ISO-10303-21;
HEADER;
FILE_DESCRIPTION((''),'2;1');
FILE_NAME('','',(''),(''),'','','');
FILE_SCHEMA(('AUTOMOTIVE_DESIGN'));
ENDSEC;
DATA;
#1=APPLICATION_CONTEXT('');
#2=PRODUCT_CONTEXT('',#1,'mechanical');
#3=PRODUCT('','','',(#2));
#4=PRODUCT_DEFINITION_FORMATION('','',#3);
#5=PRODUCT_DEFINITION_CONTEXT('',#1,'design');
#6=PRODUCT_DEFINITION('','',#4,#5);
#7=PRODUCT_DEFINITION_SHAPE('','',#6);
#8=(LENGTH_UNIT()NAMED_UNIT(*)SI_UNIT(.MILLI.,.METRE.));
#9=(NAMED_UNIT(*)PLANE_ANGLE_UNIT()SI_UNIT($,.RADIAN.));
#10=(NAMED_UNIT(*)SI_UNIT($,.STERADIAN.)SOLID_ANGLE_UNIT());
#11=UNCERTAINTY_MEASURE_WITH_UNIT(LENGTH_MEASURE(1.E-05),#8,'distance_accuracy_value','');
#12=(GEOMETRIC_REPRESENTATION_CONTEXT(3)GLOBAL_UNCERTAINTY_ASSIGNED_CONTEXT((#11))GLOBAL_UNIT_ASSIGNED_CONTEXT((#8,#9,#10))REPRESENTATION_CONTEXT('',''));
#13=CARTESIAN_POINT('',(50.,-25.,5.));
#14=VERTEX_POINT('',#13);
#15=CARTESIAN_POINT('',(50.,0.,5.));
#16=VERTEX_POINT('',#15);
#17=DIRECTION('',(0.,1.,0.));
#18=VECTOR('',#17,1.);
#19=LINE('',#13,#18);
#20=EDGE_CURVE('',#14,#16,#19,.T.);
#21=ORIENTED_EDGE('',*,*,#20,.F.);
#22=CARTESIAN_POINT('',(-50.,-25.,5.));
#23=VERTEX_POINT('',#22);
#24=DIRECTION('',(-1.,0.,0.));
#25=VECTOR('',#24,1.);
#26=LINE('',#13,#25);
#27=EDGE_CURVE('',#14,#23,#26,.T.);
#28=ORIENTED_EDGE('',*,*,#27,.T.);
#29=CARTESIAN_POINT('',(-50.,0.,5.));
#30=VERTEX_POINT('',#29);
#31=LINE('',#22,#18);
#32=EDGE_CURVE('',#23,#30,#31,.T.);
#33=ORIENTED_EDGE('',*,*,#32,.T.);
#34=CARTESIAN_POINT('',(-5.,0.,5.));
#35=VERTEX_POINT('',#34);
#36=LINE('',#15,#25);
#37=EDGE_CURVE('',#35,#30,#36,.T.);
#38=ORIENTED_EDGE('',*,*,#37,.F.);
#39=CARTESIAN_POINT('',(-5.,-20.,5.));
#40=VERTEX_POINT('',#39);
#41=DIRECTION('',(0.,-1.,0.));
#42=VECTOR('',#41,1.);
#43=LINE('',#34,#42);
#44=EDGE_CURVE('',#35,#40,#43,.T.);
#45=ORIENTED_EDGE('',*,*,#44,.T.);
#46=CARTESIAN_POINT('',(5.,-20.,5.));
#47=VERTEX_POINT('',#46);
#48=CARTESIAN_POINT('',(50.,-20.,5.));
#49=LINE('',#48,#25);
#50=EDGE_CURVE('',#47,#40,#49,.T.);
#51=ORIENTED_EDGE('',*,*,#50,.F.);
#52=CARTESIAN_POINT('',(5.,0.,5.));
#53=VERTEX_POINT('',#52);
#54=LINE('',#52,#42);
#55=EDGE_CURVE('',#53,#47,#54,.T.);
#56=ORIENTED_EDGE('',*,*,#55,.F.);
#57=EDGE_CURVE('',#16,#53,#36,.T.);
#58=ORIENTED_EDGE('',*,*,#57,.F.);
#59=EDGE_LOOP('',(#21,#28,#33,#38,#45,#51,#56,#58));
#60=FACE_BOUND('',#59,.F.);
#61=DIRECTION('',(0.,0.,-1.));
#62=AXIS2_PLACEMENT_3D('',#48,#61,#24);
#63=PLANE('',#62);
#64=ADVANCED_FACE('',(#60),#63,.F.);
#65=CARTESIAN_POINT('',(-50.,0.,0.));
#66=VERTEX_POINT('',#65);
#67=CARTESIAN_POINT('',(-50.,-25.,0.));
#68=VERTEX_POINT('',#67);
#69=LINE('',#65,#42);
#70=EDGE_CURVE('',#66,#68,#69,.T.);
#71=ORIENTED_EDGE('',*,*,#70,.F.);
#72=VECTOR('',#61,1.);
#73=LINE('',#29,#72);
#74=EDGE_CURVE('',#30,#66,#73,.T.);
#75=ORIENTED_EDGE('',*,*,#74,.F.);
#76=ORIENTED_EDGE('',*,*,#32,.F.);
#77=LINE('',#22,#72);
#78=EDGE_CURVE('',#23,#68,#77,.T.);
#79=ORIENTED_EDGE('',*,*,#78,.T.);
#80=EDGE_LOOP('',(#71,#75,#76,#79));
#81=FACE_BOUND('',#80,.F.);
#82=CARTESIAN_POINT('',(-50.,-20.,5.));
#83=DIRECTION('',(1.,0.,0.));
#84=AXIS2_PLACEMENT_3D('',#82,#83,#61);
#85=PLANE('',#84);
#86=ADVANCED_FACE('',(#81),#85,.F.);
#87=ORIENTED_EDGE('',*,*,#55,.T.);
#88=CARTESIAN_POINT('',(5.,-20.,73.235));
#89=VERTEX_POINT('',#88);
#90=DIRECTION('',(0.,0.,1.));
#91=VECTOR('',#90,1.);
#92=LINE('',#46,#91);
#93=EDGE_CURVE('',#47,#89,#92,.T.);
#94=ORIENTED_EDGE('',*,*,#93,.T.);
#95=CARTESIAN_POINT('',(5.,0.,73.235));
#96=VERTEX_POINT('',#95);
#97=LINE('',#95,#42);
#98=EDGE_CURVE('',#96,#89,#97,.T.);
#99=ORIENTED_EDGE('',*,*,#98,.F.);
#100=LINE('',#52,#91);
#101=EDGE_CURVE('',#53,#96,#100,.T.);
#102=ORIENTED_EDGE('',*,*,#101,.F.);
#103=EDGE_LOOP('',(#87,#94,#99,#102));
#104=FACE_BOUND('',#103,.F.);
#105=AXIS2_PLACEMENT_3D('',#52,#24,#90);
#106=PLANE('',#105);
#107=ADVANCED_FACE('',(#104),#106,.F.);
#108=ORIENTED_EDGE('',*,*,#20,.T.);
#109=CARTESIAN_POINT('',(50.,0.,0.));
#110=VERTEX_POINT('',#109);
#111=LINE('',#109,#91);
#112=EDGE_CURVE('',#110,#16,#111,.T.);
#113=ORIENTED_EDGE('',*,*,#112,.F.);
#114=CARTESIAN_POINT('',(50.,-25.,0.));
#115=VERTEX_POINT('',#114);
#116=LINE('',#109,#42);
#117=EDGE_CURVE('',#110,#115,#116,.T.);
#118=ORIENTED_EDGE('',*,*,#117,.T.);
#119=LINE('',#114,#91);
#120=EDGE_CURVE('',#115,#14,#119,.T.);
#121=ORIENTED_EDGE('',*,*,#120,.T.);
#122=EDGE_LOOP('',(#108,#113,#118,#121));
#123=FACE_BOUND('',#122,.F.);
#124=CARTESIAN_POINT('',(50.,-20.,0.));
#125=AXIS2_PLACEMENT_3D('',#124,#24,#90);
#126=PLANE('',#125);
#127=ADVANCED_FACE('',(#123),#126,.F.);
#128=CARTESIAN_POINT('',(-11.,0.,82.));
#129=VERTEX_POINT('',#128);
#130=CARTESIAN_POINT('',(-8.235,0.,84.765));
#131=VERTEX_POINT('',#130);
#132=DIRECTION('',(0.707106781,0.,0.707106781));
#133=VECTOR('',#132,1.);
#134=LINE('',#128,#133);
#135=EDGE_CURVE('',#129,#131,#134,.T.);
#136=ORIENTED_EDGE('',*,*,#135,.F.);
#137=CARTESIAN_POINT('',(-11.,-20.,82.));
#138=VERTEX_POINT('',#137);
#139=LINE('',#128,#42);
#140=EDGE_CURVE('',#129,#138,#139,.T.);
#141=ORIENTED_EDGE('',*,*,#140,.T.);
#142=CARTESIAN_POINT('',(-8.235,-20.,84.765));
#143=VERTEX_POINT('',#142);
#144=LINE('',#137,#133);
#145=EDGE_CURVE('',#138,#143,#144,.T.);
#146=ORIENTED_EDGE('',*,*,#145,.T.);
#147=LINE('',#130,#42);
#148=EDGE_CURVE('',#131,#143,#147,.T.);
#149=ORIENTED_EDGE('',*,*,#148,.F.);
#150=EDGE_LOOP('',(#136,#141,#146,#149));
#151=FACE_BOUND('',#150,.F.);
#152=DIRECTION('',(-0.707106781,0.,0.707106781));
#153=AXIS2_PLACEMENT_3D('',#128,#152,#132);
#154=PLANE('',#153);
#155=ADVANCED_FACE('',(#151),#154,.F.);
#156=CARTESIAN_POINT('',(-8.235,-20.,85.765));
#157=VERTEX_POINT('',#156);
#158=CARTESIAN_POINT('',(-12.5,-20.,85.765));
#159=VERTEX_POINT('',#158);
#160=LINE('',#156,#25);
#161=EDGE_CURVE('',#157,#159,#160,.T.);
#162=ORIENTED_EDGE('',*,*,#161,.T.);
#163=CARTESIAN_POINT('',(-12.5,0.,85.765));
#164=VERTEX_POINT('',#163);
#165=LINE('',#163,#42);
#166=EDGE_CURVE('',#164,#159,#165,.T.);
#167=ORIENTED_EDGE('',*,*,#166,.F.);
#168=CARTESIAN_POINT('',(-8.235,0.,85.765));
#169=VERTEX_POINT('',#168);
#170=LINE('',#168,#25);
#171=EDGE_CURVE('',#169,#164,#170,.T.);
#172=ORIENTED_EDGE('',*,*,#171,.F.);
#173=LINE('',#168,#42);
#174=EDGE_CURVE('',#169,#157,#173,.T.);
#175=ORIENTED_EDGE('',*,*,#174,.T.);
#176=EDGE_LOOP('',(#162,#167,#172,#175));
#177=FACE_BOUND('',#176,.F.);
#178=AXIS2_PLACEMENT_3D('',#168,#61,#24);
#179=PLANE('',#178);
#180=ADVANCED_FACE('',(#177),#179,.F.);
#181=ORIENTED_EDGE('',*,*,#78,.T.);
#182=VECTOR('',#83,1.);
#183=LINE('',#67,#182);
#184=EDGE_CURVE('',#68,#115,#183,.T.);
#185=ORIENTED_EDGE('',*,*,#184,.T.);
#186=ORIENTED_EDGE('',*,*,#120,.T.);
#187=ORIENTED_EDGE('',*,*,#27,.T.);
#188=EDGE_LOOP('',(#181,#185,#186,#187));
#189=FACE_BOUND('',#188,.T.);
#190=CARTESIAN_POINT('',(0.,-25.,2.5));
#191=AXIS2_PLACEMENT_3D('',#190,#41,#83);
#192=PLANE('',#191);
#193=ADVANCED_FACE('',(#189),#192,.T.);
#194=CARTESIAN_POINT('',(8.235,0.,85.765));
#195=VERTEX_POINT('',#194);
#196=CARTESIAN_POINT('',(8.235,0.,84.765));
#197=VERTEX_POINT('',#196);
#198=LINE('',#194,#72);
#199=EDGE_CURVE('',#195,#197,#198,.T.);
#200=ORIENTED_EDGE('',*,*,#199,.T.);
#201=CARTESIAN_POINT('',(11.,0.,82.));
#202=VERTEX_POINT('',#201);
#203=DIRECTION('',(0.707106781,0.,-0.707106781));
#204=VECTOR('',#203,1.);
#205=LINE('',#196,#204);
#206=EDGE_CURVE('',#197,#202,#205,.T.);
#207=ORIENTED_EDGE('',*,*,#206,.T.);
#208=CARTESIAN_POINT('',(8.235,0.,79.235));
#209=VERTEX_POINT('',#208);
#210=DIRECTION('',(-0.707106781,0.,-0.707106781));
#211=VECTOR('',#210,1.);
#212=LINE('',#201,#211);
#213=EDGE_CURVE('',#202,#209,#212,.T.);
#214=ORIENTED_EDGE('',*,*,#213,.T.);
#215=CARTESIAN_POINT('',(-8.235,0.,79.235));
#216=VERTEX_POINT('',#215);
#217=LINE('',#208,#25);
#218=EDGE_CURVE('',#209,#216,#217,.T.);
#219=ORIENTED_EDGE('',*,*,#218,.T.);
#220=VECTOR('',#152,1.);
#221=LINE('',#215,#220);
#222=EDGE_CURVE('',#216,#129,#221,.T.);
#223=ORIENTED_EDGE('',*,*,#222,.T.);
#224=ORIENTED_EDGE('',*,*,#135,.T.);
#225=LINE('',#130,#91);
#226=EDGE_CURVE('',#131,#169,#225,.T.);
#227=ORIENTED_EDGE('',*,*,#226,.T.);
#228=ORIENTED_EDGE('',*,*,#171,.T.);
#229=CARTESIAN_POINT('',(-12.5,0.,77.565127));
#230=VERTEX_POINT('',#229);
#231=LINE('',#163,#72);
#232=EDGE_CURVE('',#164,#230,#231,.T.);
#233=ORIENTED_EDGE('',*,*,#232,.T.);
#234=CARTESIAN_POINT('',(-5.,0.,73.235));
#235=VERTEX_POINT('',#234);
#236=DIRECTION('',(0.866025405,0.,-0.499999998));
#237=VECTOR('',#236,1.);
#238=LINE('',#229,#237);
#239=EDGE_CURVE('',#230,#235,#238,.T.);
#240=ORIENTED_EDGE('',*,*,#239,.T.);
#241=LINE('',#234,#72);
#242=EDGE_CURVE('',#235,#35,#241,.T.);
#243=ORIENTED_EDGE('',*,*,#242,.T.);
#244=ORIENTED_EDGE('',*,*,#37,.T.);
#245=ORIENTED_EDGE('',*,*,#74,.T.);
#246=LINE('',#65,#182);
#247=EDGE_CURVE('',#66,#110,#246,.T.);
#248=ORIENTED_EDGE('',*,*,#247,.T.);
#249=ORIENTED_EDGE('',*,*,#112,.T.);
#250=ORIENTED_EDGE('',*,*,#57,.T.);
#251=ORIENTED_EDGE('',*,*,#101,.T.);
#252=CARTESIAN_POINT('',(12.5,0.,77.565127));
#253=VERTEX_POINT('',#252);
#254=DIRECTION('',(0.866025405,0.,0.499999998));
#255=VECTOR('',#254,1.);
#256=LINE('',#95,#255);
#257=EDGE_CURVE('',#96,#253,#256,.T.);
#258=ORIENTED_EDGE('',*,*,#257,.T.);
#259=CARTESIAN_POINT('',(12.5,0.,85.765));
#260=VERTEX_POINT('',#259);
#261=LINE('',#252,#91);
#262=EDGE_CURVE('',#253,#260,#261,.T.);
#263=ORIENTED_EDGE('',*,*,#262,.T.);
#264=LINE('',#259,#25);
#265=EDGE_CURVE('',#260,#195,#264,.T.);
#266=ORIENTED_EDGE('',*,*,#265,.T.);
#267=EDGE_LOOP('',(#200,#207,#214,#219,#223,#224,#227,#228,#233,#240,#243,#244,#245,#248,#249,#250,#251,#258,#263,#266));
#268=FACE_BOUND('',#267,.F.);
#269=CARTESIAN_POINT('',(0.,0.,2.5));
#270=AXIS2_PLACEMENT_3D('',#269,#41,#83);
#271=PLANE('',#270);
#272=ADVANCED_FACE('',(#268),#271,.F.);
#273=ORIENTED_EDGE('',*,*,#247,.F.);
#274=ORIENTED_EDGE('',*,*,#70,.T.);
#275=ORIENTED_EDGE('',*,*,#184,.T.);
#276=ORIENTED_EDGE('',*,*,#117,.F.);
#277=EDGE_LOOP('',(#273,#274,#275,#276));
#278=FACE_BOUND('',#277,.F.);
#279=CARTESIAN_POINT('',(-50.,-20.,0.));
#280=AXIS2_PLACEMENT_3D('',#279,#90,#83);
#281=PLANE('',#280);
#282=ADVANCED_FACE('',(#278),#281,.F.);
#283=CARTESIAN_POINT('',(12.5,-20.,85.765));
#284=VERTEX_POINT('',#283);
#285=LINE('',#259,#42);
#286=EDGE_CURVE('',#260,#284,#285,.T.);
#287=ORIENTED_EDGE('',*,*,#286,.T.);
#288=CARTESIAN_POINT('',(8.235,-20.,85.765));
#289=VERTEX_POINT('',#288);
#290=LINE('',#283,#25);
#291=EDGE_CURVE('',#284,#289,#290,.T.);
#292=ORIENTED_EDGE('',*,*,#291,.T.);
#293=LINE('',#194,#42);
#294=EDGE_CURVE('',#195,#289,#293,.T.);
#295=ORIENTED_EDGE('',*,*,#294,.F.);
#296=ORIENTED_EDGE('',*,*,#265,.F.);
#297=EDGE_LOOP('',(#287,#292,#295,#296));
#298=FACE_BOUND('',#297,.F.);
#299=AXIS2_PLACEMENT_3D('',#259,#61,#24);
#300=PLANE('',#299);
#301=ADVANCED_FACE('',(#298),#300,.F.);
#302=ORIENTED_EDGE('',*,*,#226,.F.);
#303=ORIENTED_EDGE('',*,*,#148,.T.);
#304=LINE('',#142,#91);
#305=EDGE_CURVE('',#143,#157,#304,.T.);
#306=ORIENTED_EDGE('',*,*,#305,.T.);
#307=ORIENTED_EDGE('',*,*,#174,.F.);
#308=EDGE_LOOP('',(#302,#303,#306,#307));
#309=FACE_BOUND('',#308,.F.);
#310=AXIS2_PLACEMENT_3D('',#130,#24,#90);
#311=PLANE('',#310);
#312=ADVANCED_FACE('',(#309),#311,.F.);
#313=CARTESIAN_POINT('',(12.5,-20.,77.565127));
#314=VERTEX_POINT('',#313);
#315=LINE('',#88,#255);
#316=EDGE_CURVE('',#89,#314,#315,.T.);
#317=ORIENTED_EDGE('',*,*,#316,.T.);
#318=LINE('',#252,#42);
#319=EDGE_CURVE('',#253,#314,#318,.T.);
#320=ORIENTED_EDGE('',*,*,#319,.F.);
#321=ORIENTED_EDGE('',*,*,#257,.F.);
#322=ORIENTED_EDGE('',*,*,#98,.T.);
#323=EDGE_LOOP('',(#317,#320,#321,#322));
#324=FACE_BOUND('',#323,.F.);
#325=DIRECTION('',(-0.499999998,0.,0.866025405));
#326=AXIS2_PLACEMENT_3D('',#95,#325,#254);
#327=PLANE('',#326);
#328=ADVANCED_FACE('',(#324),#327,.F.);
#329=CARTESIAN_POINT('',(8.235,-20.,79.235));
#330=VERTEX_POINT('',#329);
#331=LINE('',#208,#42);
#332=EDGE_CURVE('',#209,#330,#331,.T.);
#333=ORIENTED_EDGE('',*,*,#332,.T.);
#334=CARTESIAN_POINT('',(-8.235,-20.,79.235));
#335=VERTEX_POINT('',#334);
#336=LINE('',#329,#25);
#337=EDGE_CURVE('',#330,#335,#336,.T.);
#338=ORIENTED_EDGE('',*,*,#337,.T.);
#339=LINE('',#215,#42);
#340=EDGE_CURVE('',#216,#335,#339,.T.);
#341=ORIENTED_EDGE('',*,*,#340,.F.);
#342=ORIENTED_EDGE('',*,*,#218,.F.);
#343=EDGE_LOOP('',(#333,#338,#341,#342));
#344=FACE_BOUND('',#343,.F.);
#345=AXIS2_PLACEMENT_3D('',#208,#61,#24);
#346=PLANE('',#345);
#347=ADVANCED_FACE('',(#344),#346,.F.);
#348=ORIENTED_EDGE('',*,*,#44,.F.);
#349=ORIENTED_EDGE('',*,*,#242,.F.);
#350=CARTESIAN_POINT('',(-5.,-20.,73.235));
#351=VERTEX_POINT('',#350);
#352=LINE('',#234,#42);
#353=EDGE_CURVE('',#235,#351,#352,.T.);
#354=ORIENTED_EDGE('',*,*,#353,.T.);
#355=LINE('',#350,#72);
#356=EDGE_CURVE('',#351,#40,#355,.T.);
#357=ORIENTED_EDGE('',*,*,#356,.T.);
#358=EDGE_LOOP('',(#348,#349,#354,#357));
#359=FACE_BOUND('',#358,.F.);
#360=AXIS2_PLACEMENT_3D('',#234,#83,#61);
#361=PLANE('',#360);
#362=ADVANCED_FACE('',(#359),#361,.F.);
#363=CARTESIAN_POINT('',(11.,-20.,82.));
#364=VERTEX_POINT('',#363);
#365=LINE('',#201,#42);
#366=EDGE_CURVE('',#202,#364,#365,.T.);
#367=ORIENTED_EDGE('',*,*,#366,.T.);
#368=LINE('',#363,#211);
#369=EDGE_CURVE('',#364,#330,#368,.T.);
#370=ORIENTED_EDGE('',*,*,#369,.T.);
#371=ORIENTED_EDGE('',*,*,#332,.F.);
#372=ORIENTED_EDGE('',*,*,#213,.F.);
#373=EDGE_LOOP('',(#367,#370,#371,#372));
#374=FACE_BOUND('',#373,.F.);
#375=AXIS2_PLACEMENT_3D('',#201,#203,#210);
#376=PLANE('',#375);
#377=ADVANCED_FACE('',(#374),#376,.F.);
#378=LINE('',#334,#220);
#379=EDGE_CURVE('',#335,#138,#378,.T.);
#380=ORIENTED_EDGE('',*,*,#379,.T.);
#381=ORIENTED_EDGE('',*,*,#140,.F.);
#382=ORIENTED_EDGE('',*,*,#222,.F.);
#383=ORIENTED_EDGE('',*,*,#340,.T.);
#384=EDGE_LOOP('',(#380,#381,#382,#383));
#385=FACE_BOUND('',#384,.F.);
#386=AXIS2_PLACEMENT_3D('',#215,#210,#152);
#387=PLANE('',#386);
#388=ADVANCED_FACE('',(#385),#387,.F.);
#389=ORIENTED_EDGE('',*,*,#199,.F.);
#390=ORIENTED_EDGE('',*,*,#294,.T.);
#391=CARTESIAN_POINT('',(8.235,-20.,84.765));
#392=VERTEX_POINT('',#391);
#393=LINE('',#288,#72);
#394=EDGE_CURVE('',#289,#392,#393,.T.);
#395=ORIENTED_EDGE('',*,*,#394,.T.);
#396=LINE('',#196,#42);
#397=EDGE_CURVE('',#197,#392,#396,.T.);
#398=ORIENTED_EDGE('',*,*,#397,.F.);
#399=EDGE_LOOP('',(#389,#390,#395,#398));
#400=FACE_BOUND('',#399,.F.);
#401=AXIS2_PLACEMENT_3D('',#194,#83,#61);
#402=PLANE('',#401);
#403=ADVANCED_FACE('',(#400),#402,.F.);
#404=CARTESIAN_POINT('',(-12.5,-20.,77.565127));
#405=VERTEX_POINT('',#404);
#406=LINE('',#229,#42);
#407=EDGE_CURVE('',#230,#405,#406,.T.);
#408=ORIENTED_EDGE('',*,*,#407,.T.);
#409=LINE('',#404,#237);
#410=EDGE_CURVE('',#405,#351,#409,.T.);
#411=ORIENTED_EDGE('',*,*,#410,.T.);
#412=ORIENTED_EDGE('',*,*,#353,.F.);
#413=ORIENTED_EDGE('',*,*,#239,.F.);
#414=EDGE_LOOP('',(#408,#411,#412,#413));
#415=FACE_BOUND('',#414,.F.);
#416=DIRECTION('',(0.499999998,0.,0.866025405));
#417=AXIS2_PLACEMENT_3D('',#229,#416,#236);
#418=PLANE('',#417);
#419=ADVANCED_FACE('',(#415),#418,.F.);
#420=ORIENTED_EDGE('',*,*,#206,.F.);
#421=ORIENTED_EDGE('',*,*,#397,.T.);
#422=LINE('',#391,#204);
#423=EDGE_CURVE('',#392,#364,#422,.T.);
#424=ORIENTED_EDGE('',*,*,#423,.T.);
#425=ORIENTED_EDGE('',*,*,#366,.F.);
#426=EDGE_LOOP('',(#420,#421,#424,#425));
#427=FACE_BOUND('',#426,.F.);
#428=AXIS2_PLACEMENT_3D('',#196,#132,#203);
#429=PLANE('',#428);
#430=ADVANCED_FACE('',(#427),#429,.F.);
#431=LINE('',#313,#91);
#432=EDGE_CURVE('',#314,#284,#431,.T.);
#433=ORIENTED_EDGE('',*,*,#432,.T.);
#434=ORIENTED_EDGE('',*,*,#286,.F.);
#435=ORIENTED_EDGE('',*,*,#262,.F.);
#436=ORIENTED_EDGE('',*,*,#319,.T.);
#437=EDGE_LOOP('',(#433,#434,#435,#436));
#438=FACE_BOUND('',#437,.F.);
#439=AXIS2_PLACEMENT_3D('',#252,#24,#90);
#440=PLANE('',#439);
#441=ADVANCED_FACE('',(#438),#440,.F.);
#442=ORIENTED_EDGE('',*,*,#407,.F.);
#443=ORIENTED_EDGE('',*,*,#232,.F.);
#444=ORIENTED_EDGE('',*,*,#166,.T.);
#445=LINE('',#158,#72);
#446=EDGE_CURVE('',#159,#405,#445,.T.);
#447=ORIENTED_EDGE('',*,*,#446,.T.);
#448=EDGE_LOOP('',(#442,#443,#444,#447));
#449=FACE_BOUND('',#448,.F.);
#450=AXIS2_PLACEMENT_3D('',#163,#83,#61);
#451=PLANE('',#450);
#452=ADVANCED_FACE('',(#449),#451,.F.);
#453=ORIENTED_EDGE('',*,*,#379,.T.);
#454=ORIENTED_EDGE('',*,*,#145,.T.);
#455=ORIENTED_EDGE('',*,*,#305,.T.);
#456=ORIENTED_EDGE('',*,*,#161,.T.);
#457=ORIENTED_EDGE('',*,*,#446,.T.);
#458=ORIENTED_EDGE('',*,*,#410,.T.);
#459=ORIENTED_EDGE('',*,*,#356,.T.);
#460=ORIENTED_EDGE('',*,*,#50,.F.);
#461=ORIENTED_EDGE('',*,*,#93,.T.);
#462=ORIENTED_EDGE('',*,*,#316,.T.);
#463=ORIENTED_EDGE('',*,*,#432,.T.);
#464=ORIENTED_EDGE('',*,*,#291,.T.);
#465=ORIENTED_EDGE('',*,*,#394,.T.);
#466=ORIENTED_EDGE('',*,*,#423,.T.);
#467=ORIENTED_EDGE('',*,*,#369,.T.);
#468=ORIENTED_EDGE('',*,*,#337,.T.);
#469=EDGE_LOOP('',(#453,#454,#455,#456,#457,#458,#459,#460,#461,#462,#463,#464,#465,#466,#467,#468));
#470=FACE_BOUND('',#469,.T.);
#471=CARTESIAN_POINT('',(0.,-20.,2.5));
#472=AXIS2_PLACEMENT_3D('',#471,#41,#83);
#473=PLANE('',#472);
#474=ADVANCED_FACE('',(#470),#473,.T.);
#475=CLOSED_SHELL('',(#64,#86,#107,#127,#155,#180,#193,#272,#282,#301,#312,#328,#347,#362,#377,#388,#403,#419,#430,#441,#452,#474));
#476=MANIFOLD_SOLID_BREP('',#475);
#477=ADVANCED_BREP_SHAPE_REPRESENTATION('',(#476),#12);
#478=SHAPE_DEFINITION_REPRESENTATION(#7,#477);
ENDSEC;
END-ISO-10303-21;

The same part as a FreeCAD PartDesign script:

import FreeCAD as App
import Part
import Sketcher
from FreeCAD import Vector
Q = App.Units.Quantity


def add_polygon(sketch, points):
    """Adds a closed chain of lines whose ends are joined by coincident constraints."""
    first, n = sketch.GeometryCount, len(points)
    for a, b in zip(points, points[1:] + points[:1]):
        sketch.addGeometry(Part.LineSegment(App.Vector(*a, 0), App.Vector(*b, 0)), False)
    for i in range(n):
        sketch.addConstraint(Sketcher.Constraint("Coincident", first + i, 2, first + (i + 1) % n, 1))

doc = App.newDocument("Part")
params = doc.addObject("Spreadsheet::Sheet", "Params")
for row, (alias, value) in enumerate([
    ("sketch1_width", "100 mm"),
    ("sketch1_width2", "45 mm"),
    ("sketch1_height", "5 mm"),
    ("sketch1_height2", "1 mm"),
    ("sketch1_width3", "16.47 mm"),
    ("pad1_length", "20 mm"),
    ("sketch2_width", "100 mm"),
    ("sketch2_height", "5 mm"),
    ("pad2_length", "5 mm"),
], start=1):
    params.set(f"A{row}", alias)
    params.set(f"B{row}", "=" + value)
    params.setAlias(f"B{row}", alias)

body = doc.addObject("PartDesign::Body", "Body")

# Sketch on XZ plane
sketch1 = body.newObject("Sketcher::SketchObject", "Sketch")
sketch1.AttachmentSupport = (doc.getObject("XZ_Plane"), [""])
sketch1.MapMode = "FlatFace"
add_polygon(sketch1, [(-50, 5), (-50, 0), (50, 0), (50, 5), (5, 5), (5, 73.2), (12.5, 77.6), (12.5, 85.8), (8.2, 85.8), (8.2, 84.8), (11, 82), (8.2, 79.2), (-8.2, 79.2), (-11, 82), (-8.2, 84.8), (-8.2, 85.8), (-12.5, 85.8), (-12.5, 77.6), (-5, 73.2), (-5, 5)])  # lines 0-19
sketch1.addConstraint(Sketcher.Constraint("Vertical", 0))
sketch1.addConstraint(Sketcher.Constraint("Horizontal", 1))
sketch1.addConstraint(Sketcher.Constraint("Vertical", 2))
sketch1.addConstraint(Sketcher.Constraint("Horizontal", 3))
sketch1.addConstraint(Sketcher.Constraint("Vertical", 4))
sketch1.addConstraint(Sketcher.Constraint("Vertical", 6))
sketch1.addConstraint(Sketcher.Constraint("Horizontal", 7))
sketch1.addConstraint(Sketcher.Constraint("Vertical", 8))
sketch1.addConstraint(Sketcher.Constraint("Horizontal", 11))
sketch1.addConstraint(Sketcher.Constraint("Vertical", 14))
sketch1.addConstraint(Sketcher.Constraint("Horizontal", 15))
sketch1.addConstraint(Sketcher.Constraint("Vertical", 16))
sketch1.addConstraint(Sketcher.Constraint("Vertical", 18))
sketch1.addConstraint(Sketcher.Constraint("Horizontal", 19))
sketch1.addConstraint(Sketcher.Constraint("Symmetric", 0, 2, 1, 2, -1, 1))
sketch1.addConstraint(Sketcher.Constraint("Symmetric", 9, 2, 12, 2, -2))
sketch1.addConstraint(Sketcher.Constraint("Symmetric", 8, 2, 13, 2, -2))
sketch1.addConstraint(Sketcher.Constraint("Symmetric", 6, 2, 15, 2, -2))
sketch1.addConstraint(Sketcher.Constraint("Symmetric", 4, 2, 17, 2, -2))
sketch1.addConstraint(Sketcher.Constraint("Perpendicular", 9, 10))
sketch1.addConstraint(Sketcher.Constraint("Perpendicular", 10, 12))
sketch1.addConstraint(Sketcher.Constraint("Perpendicular", 12, 13))
sketch1.addConstraint(Sketcher.Constraint("Horizontal", 5, 2, 16, 2))
sketch1.addConstraint(Sketcher.Constraint("Horizontal", 3, 2, 18, 2))
sketch1.addConstraint(Sketcher.Constraint("Vertical", 8, 2, 10, 2))
sketch1.addConstraint(Sketcher.Constraint("DistanceX", 1, 1, 1, 2, 100.0))
sketch1.addConstraint(Sketcher.Constraint("DistanceX", 3, 2, 3, 1, 45.0))
sketch1.addConstraint(Sketcher.Constraint("DistanceY", 0, 2, 0, 1, 5.0))
sketch1.addConstraint(Sketcher.Constraint("DistanceY", 8, 2, 8, 1, 1.0))
sketch1.addConstraint(Sketcher.Constraint("Angle", 5, Q("30 deg")))
sketch1.addConstraint(Sketcher.Constraint("DistanceX", -1, 1, 9, 2, 11.0))
sketch1.addConstraint(Sketcher.Constraint("DistanceY", -1, 1, 9, 2, 82.0))
sketch1.addConstraint(Sketcher.Constraint("DistanceY", 4, 2, 10, 2, 6.0))
sketch1.addConstraint(Sketcher.Constraint("DistanceX", 11, 2, 11, 1, 16.47))
sketch1.addConstraint(Sketcher.Constraint("DistanceX", -1, 1, 5, 2, 12.5))
sketch1.setExpression("Constraints[45]", "Params.sketch1_width")
sketch1.setExpression("Constraints[46]", "Params.sketch1_width2")
sketch1.setExpression("Constraints[47]", "Params.sketch1_height")
sketch1.setExpression("Constraints[48]", "Params.sketch1_height2")
sketch1.setExpression("Constraints[53]", "Params.sketch1_width3")
pad1 = body.newObject("PartDesign::Pad", "Pad")
pad1.Profile = sketch1
pad1.setExpression("Length", "Params.pad1_length")

# Sketch on XZ plane
sketch2 = body.newObject("Sketcher::SketchObject", "Sketch001")
sketch2.AttachmentSupport = (doc.getObject("XZ_Plane"), [""])
sketch2.MapMode = "FlatFace"
sketch2.AttachmentOffset = App.Placement(Vector(0, 0, 20), App.Rotation())
add_polygon(sketch2, [(-50, 5), (-50, 0), (50, 0), (50, 5)])  # lines 0-3
sketch2.addConstraint(Sketcher.Constraint("Vertical", 0))
sketch2.addConstraint(Sketcher.Constraint("Horizontal", 1))
sketch2.addConstraint(Sketcher.Constraint("Vertical", 2))
sketch2.addConstraint(Sketcher.Constraint("Horizontal", 3))
sketch2.addConstraint(Sketcher.Constraint("Symmetric", 0, 2, 1, 2, -1, 1))
sketch2.addConstraint(Sketcher.Constraint("DistanceX", 1, 1, 1, 2, 100.0))
sketch2.addConstraint(Sketcher.Constraint("DistanceY", 0, 2, 0, 1, 5.0))
sketch2.setExpression("Constraints[9]", "Params.sketch2_width")
sketch2.setExpression("Constraints[10]", "Params.sketch2_height")
pad2 = body.newObject("PartDesign::Pad", "Pad001")
pad2.Profile = sketch2
pad2.setExpression("Length", "Params.pad2_length")

doc.recompute()
